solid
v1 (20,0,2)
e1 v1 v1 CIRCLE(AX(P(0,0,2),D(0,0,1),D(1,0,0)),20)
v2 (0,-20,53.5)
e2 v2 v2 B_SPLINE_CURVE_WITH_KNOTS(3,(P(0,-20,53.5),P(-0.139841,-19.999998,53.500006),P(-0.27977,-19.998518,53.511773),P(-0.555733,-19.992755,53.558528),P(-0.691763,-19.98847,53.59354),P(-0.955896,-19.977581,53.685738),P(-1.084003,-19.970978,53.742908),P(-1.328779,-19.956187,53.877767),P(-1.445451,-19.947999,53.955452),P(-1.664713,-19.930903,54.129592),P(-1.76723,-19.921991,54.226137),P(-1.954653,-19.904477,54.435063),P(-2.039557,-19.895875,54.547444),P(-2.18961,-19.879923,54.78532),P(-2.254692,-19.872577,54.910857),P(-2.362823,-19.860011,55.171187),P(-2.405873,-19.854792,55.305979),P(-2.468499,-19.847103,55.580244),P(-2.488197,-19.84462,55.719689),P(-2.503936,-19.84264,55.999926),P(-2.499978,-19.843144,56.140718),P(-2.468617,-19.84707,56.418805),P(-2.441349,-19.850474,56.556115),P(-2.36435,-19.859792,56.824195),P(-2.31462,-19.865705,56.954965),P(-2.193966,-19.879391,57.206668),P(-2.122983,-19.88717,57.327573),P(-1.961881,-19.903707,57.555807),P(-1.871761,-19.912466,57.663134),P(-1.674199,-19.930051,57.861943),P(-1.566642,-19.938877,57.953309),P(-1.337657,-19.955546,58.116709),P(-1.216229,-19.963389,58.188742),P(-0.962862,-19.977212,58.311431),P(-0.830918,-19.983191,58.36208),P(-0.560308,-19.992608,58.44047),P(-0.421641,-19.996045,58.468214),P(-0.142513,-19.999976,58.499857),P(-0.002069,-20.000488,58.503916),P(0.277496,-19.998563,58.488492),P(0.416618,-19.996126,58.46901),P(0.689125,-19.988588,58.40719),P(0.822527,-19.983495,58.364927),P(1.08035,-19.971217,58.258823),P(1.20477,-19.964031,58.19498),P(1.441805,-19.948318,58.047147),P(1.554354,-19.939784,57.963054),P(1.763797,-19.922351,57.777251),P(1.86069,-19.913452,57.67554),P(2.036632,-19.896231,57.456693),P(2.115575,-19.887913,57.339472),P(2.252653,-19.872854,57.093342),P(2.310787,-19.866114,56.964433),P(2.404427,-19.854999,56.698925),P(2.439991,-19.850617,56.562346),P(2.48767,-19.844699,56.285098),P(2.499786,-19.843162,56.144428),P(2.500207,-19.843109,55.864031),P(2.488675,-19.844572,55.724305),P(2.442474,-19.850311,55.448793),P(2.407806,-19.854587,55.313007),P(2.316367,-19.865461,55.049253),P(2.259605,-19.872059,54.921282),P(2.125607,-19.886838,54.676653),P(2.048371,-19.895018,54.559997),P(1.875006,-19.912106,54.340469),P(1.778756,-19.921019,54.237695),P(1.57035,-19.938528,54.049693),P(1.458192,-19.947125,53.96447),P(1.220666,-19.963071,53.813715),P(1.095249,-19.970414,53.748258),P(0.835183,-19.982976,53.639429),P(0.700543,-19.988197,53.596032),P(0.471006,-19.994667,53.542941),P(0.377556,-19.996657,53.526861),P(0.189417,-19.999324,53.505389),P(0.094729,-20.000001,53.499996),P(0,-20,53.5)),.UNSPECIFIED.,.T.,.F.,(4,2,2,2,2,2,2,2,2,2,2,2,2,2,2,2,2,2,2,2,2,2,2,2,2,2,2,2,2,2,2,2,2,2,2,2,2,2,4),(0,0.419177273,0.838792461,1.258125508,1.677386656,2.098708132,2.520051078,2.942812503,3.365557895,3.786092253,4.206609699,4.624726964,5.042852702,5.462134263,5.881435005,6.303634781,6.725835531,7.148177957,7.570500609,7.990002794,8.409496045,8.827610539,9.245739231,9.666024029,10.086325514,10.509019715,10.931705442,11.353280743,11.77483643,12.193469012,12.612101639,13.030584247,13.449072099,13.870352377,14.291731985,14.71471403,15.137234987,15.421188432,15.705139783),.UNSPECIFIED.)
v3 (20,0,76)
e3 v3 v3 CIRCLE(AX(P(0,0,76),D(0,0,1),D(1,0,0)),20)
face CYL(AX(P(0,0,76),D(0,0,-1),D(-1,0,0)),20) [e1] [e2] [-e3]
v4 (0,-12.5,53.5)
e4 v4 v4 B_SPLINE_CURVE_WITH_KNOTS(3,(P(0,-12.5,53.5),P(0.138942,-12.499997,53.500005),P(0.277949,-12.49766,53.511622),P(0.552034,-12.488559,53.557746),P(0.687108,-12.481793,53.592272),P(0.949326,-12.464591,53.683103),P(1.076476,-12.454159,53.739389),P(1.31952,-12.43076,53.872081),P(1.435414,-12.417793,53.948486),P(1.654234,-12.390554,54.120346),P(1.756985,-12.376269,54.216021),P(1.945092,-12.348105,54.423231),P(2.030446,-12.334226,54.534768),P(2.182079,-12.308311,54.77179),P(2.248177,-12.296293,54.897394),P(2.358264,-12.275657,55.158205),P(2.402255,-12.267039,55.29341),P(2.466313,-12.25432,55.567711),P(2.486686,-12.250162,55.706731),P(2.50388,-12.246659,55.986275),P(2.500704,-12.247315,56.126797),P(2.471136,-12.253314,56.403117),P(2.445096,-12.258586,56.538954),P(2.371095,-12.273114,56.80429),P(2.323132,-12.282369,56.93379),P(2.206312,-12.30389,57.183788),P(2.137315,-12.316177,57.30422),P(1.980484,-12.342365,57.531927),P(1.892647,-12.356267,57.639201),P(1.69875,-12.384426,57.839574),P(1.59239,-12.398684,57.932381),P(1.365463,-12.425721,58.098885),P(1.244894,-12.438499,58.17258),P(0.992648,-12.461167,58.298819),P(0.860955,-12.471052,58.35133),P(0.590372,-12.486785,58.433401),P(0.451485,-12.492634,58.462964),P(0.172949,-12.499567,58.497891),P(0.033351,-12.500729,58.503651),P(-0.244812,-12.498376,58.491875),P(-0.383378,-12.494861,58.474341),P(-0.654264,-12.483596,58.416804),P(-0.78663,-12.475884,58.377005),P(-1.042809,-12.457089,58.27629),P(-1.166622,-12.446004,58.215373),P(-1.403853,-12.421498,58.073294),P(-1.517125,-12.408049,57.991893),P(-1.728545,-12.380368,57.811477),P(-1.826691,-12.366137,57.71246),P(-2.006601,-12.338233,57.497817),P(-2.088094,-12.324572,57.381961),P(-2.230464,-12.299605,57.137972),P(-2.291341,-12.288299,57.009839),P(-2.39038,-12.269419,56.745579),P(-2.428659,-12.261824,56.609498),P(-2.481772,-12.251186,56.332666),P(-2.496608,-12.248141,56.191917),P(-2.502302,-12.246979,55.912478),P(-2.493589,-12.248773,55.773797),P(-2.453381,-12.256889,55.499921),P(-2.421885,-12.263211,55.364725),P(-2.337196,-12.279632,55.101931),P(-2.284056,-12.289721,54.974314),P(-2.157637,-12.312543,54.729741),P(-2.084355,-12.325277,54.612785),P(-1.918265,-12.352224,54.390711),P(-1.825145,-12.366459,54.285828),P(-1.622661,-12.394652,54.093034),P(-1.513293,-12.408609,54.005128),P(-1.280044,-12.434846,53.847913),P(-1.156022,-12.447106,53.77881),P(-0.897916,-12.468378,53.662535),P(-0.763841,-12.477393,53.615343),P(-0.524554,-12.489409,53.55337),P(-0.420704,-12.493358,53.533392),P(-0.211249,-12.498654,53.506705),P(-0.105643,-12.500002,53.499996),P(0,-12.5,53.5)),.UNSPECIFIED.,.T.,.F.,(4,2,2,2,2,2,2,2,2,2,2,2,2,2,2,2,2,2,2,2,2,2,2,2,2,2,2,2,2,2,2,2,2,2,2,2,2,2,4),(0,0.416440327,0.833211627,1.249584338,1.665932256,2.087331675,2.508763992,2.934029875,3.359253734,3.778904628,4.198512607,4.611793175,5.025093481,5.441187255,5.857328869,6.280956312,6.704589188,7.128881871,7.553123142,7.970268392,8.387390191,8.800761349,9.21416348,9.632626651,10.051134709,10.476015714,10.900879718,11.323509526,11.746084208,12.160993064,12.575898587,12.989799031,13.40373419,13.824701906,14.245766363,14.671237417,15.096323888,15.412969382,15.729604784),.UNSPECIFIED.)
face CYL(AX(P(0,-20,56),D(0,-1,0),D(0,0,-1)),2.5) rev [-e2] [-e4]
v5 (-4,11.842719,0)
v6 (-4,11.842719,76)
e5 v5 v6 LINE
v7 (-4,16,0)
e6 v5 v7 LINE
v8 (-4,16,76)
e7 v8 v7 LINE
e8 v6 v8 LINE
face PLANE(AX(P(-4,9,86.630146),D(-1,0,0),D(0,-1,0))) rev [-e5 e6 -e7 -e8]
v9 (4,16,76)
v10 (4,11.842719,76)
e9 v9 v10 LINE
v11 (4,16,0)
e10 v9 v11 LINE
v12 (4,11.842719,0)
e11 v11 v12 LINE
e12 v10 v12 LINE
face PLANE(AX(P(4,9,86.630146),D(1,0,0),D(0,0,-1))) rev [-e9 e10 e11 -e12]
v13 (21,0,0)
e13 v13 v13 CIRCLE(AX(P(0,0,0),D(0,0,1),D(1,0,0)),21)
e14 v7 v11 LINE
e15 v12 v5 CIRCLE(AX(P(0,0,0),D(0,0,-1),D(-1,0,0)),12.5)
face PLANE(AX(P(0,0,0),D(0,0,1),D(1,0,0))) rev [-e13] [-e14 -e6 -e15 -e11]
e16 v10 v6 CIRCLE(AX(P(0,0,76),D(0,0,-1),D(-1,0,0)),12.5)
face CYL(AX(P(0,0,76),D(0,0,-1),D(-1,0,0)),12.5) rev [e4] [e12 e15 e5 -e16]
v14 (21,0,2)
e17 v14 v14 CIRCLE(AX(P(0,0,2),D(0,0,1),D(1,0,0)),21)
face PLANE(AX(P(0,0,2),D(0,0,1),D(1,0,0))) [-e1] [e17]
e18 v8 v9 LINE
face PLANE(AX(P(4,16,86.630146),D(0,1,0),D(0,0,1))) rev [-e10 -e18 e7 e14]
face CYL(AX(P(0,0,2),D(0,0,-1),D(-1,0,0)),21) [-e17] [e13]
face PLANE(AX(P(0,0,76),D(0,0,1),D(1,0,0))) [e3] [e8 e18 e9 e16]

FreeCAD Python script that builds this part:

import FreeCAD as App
import Part
import Sketcher

V = App.Vector

doc = App.newDocument("Part")
body = doc.addObject("PartDesign::Body", "Body")

# Sketch on XY plane
sketch1 = body.newObject("Sketcher::SketchObject", "Sketch")
sketch1.AttachmentSupport = (doc.getObject("XY_Plane"), [""])
sketch1.MapMode = "FlatFace"
sketch1.addGeometry(Part.Circle(V(0, 0, 0), V(0, 0, 1), 21), False)
sketch1.addConstraint([
    Sketcher.Constraint("Coincident", 0, 3, -1, 1),
    Sketcher.Constraint("Diameter", 0, 42.0),
])
pad1 = body.newObject("PartDesign::Pad", "Pad")
pad1.Profile = sketch1
pad1.Length = 2

# Sketch on XY plane
sketch2 = body.newObject("Sketcher::SketchObject", "Sketch001")
sketch2.AttachmentSupport = (doc.getObject("XY_Plane"), [""])
sketch2.MapMode = "FlatFace"
sketch2.AttachmentOffset = App.Placement(V(0, 0, 2), App.Rotation())
sketch2.addGeometry(Part.Circle(V(0, 0, 0), V(0, 0, 1), 20), False)
sketch2.addConstraint([
    Sketcher.Constraint("Coincident", 0, 3, -1, 1),
    Sketcher.Constraint("Diameter", 0, 40.0),
])
pad2 = body.newObject("PartDesign::Pad", "Pad001")
pad2.Profile = sketch2
pad2.Length = 74

# Sketch on XY plane
sketch3 = body.newObject("Sketcher::SketchObject", "Sketch002")
sketch3.AttachmentSupport = (doc.getObject("XY_Plane"), [""])
sketch3.MapMode = "FlatFace"
sketch3.addGeometry(Part.Circle(V(0, 0, 0), V(0, 0, 1), 12), False)
sketch3.addConstraint([
    Sketcher.Constraint("Coincident", 0, 3, -1, 1),
    Sketcher.Constraint("Diameter", 0, 25.0),
])
pocket1 = body.newObject("PartDesign::Pocket", "Pocket")
pocket1.Profile = sketch3
pocket1.Type = "ThroughAll"
pocket1.Reversed = True

# Sketch on XY plane
sketch4 = body.newObject("Sketcher::SketchObject", "Sketch003")
sketch4.AttachmentSupport = (doc.getObject("XY_Plane"), [""])
sketch4.MapMode = "FlatFace"
sketch4.addGeometry([
    Part.LineSegment(V(4, 16, 0), V(4, 9, 0)),
    Part.LineSegment(V(4, 9, 0), V(-4, 9, 0)),
    Part.LineSegment(V(-4, 9, 0), V(-4, 16, 0)),
    Part.LineSegment(V(-4, 16, 0), V(4, 16, 0)),
], False)
sketch4.addConstraint([
    Sketcher.Constraint("Coincident", 0, 2, 1, 1),
    Sketcher.Constraint("Coincident", 1, 2, 2, 1),
    Sketcher.Constraint("Coincident", 2, 2, 3, 1),
    Sketcher.Constraint("Coincident", 3, 2, 0, 1),
    Sketcher.Constraint("Vertical", 0),
    Sketcher.Constraint("Horizontal", 1),
    Sketcher.Constraint("Vertical", 2),
    Sketcher.Constraint("Horizontal", 3),
    Sketcher.Constraint("DistanceX", 1, 2, 1, 1, 8.0),
    Sketcher.Constraint("DistanceY", 0, 2, 0, 1, 7.0),
    Sketcher.Constraint("DistanceX", -1, 1, 0, 2, 4.0),
    Sketcher.Constraint("DistanceY", -1, 1, 0, 2, 9.0),
])
pocket2 = body.newObject("PartDesign::Pocket", "Pocket001")
pocket2.Profile = sketch4
pocket2.Length = 76
pocket2.Reversed = True

# Sketch on XZ plane
sketch5 = body.newObject("Sketcher::SketchObject", "Sketch004")
sketch5.AttachmentSupport = (doc.getObject("XZ_Plane"), [""])
sketch5.MapMode = "FlatFace"
sketch5.AttachmentOffset = App.Placement(V(0, 0, 20), App.Rotation())
sketch5.addGeometry(Part.Circle(V(0, 56, 0), V(0, 0, 1), 2.5), False)
sketch5.addConstraint([
    Sketcher.Constraint("PointOnObject", 0, 3, -2),
    Sketcher.Constraint("Diameter", 0, 5.0),
    Sketcher.Constraint("DistanceY", -1, 1, 0, 3, 56.0),
])
doc.recompute()
hole = body.newObject("PartDesign::Hole", "Hole")
hole.Profile = sketch5
hole.ThreadType = "None"
hole.Diameter = 5
hole.DepthType = "Dimension"
hole.Depth = 8.497848
hole.DrillPoint = "Angled"
hole.DrillPointAngle = 118

doc.recompute()
